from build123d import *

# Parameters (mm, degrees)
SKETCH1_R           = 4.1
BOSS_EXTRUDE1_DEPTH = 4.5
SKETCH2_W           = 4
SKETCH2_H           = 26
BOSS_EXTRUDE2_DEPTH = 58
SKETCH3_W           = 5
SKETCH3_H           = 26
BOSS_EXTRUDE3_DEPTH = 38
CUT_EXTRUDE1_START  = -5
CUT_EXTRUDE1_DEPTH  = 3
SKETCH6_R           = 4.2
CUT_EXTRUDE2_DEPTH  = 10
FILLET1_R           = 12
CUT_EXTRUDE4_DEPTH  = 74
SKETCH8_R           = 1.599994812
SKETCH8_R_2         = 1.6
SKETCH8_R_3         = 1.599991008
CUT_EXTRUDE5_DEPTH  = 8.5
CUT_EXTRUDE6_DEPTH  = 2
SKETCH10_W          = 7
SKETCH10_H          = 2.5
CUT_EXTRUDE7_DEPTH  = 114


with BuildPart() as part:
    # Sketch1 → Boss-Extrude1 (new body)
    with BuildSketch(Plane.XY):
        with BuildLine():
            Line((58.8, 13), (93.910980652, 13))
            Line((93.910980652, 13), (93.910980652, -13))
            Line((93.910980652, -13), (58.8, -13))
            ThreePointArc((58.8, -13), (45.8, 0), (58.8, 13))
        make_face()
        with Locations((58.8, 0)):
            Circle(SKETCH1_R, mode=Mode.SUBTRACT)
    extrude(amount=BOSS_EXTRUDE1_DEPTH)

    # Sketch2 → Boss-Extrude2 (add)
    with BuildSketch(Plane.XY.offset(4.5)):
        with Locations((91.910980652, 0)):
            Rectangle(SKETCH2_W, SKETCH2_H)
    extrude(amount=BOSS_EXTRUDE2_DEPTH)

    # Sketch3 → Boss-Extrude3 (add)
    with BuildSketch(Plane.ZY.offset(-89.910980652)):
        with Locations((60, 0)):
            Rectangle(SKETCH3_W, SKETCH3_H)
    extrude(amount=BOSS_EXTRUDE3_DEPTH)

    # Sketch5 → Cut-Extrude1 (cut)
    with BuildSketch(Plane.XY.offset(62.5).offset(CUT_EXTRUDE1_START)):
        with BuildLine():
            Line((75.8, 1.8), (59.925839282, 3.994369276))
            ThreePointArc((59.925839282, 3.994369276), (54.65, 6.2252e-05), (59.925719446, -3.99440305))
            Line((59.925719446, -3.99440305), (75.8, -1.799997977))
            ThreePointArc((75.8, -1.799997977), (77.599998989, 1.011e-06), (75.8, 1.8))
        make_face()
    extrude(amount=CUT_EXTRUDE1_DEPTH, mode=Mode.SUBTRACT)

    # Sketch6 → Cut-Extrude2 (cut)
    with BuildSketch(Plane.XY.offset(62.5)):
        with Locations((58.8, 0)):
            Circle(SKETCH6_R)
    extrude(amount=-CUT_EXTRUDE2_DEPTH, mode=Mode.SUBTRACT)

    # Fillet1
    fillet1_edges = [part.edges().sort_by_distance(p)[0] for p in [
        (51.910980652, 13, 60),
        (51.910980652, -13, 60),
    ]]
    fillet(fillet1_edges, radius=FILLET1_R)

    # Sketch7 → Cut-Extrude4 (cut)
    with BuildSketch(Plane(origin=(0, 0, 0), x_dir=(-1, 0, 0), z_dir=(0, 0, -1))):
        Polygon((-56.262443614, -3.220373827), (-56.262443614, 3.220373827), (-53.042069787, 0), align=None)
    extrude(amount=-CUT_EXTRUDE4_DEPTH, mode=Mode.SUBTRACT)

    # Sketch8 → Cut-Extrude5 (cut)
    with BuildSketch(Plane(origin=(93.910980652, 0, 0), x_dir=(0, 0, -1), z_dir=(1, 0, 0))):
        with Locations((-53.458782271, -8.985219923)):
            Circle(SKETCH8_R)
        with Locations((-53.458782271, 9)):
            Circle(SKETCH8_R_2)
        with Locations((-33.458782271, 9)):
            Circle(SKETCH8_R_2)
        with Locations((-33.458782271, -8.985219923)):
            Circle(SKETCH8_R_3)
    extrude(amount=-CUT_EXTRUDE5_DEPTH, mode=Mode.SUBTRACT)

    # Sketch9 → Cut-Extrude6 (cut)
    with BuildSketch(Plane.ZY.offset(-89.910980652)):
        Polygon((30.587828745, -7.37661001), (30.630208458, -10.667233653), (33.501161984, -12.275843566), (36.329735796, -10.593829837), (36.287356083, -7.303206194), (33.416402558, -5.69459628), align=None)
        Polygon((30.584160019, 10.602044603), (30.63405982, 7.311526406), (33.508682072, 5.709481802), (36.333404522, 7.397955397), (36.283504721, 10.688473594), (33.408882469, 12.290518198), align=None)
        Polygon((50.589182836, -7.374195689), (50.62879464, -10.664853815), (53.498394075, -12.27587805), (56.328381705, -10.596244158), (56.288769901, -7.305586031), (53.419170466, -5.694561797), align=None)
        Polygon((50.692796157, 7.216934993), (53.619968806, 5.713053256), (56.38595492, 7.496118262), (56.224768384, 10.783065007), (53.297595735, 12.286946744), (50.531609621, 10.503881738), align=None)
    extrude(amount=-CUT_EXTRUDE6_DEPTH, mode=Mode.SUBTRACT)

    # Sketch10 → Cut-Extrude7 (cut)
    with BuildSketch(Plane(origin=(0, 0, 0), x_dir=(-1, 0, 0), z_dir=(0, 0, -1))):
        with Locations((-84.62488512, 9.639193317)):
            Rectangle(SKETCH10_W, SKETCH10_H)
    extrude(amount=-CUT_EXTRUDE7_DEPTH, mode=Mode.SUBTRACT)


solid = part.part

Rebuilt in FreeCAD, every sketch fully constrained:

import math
import FreeCAD as App
import Part
import Sketcher
from FreeCAD import Vector


def edges_at(feature, points):
    """Names of the edges that pass closest to the given points."""
    edges = feature.Shape.Edges
    near = lambda p: min(range(len(edges)), key=lambda i: edges[i].distToShape(Part.Vertex(*p))[0])
    return sorted({f"Edge{near(p) + 1}" for p in points})


def add_polygon(sketch, points):
    """Adds a closed chain of lines whose ends are joined by coincident constraints."""
    first, n = sketch.GeometryCount, len(points)
    for a, b in zip(points, points[1:] + points[:1]):
        sketch.addGeometry(Part.LineSegment(App.Vector(*a, 0), App.Vector(*b, 0)), False)
    for i in range(n):
        sketch.addConstraint(Sketcher.Constraint("Coincident", first + i, 2, first + (i + 1) % n, 1))

doc = App.newDocument("Part")
body = doc.addObject("PartDesign::Body", "Body")

# Sketch on XY plane
sketch1 = body.newObject("Sketcher::SketchObject", "Sketch")
sketch1.AttachmentSupport = (doc.getObject("XY_Plane"), [""])
sketch1.MapMode = "FlatFace"
sketch1.addGeometry(Part.LineSegment(Vector(93.9, 13, 0), Vector(58.8, 13, 0)), False)
sketch1.addGeometry(Part.ArcOfCircle(Part.Circle(Vector(58.8, 0, 0), Vector(0, 0, 1), 13), math.radians(90), math.radians(270)), False)
sketch1.addGeometry(Part.LineSegment(Vector(58.8, -13, 0), Vector(93.9, -13, 0)), False)
sketch1.addGeometry(Part.LineSegment(Vector(93.9, -13, 0), Vector(93.9, 13, 0)), False)
sketch1.addGeometry(Part.Circle(Vector(58.8, 0, 0), Vector(0, 0, 1), 4.1), False)
sketch1.addConstraint(Sketcher.Constraint("Tangent", 0, 2, 1, 1))
sketch1.addConstraint(Sketcher.Constraint("Tangent", 1, 2, 2, 1))
sketch1.addConstraint(Sketcher.Constraint("Coincident", 2, 2, 3, 1))
sketch1.addConstraint(Sketcher.Constraint("Coincident", 3, 2, 0, 1))
sketch1.addConstraint(Sketcher.Constraint("Horizontal", 0))
sketch1.addConstraint(Sketcher.Constraint("Horizontal", 2))
sketch1.addConstraint(Sketcher.Constraint("Vertical", 3))
sketch1.addConstraint(Sketcher.Constraint("Coincident", 4, 3, 1, 3))
sketch1.addConstraint(Sketcher.Constraint("PointOnObject", 1, 3, -1))
sketch1.addConstraint(Sketcher.Constraint("Radius", 1, 13.0))
sketch1.addConstraint(Sketcher.Constraint("Diameter", 4, 8.2))
sketch1.addConstraint(Sketcher.Constraint("DistanceX", -1, 1, 1, 3, 58.8))
sketch1.addConstraint(Sketcher.Constraint("DistanceX", 0, 2, 0, 1, 35.110981))
pad1 = body.newObject("PartDesign::Pad", "Pad")
pad1.Profile = sketch1
pad1.Length = 4.5

# Sketch on XY plane
sketch2 = body.newObject("Sketcher::SketchObject", "Sketch001")
sketch2.AttachmentSupport = (doc.getObject("XY_Plane"), [""])
sketch2.MapMode = "FlatFace"
sketch2.AttachmentOffset = App.Placement(Vector(0, 0, 4.5), App.Rotation())
add_polygon(sketch2, [(89.9, 13), (89.9, -13), (93.9, -13), (93.9, 13)])  # lines 0-3
sketch2.addConstraint(Sketcher.Constraint("Vertical", 0))
sketch2.addConstraint(Sketcher.Constraint("Horizontal", 1))
sketch2.addConstraint(Sketcher.Constraint("Vertical", 2))
sketch2.addConstraint(Sketcher.Constraint("Horizontal", 3))
sketch2.addConstraint(Sketcher.Constraint("DistanceX", 1, 1, 1, 2, 4.0))
sketch2.addConstraint(Sketcher.Constraint("DistanceY", 0, 2, 0, 1, 26.0))
sketch2.addConstraint(Sketcher.Constraint("DistanceY", 0, 2, -1, 1, 13.0))
sketch2.addConstraint(Sketcher.Constraint("DistanceX", -1, 1, 0, 2, 89.910981))
pad2 = body.newObject("PartDesign::Pad", "Pad001")
pad2.Profile = sketch2
pad2.Length = 58

# Sketch on YZ plane
sketch3 = body.newObject("Sketcher::SketchObject", "Sketch002")
sketch3.AttachmentSupport = (doc.getObject("YZ_Plane"), [""])
sketch3.MapMode = "FlatFace"
sketch3.AttachmentOffset = App.Placement(Vector(0, 0, 89.910981), App.Rotation())
add_polygon(sketch3, [(13, 58), (-13, 58), (-13, 62), (13, 62)])  # lines 0-3
sketch3.addConstraint(Sketcher.Constraint("Horizontal", 0))
sketch3.addConstraint(Sketcher.Constraint("Vertical", 1))
sketch3.addConstraint(Sketcher.Constraint("Horizontal", 2))
sketch3.addConstraint(Sketcher.Constraint("Vertical", 3))
sketch3.addConstraint(Sketcher.Constraint("DistanceX", 0, 2, 0, 1, 26.0))
sketch3.addConstraint(Sketcher.Constraint("DistanceY", 1, 1, 1, 2, 5.0))
sketch3.addConstraint(Sketcher.Constraint("DistanceX", 0, 2, -1, 1, 13.0))
sketch3.addConstraint(Sketcher.Constraint("DistanceY", -1, 1, 0, 2, 57.5))
pad3 = body.newObject("PartDesign::Pad", "Pad002")
pad3.Profile = sketch3
pad3.Length = 38
pad3.Reversed = True

# Sketch on XY plane
sketch4 = body.newObject("Sketcher::SketchObject", "Sketch003")
sketch4.AttachmentSupport = (doc.getObject("XY_Plane"), [""])
sketch4.MapMode = "FlatFace"
sketch4.AttachmentOffset = App.Placement(Vector(0, 0, 57.5), App.Rotation())
sketch4.addGeometry(Part.LineSegment(Vector(75.8, 1.8, 0), Vector(59.9, 4, 0)), False)
sketch4.addGeometry(Part.ArcOfCircle(Part.Circle(Vector(58.8, 0, 0), Vector(0, 0, 1), 4.2), math.radians(74), math.radians(286)), False)
sketch4.addGeometry(Part.LineSegment(Vector(59.9, -4, 0), Vector(75.8, -1.8, 0)), False)
sketch4.addGeometry(Part.ArcOfCircle(Part.Circle(Vector(75.8, 0, 0), Vector(0, 0, 1), 1.8), math.radians(-90), math.radians(90)), False)
sketch4.addConstraint(Sketcher.Constraint("Coincident", 0, 2, 1, 1))
sketch4.addConstraint(Sketcher.Constraint("Coincident", 1, 2, 2, 1))
sketch4.addConstraint(Sketcher.Constraint("Coincident", 2, 2, 3, 1))
sketch4.addConstraint(Sketcher.Constraint("Coincident", 3, 2, 0, 1))
sketch4.addConstraint(Sketcher.Constraint("Symmetric", 2, 2, 3, 2, -1))
sketch4.addConstraint(Sketcher.Constraint("PointOnObject", 1, 3, -1))
sketch4.addConstraint(Sketcher.Constraint("Vertical", 3, 3, 2, 2))
sketch4.addConstraint(Sketcher.Constraint("Radius", 3, 1.799999))
sketch4.addConstraint(Sketcher.Constraint("Radius", 1, 4.15))
sketch4.addConstraint(Sketcher.Constraint("DistanceX", 1, 3, 3, 3, 17.0))
sketch4.addConstraint(Sketcher.Constraint("DistanceX", -1, 1, 1, 3, 58.8))
sketch4.addConstraint(Sketcher.Constraint("DistanceX", -1, 1, 0, 2, 59.925839))
sketch4.addConstraint(Sketcher.Constraint("DistanceX", -1, 1, 1, 2, 59.925719))
pocket1 = body.newObject("PartDesign::Pocket", "Pocket")
pocket1.Profile = sketch4
pocket1.Length = 3
pocket1.Reversed = True

# Sketch on XY plane
sketch5 = body.newObject("Sketcher::SketchObject", "Sketch004")
sketch5.AttachmentSupport = (doc.getObject("XY_Plane"), [""])
sketch5.MapMode = "FlatFace"
sketch5.AttachmentOffset = App.Placement(Vector(0, 0, 62.5), App.Rotation())
sketch5.addGeometry(Part.Circle(Vector(58.8, 0, 0), Vector(0, 0, 1), 4.2), False)
sketch5.addConstraint(Sketcher.Constraint("PointOnObject", 0, 3, -1))
sketch5.addConstraint(Sketcher.Constraint("Diameter", 0, 8.4))
sketch5.addConstraint(Sketcher.Constraint("DistanceX", -1, 1, 0, 3, 58.8))
pocket2 = body.newObject("PartDesign::Pocket", "Pocket001")
pocket2.Profile = sketch5
pocket2.Length = 10
doc.recompute()

fillet = body.newObject("PartDesign::Fillet", "Fillet")
fillet.Base = (pocket2, edges_at(pocket2, [(51.911, 13, 60), (51.911, -13, 60)]))
fillet.Radius = 12

# Sketch on XY plane
sketch6 = body.newObject("Sketcher::SketchObject", "Sketch005")
sketch6.AttachmentSupport = (doc.getObject("XY_Plane"), [""])
sketch6.MapMode = "FlatFace"
add_polygon(sketch6, [(56.3, 3.2), (56.3, -3.2), (53, 0)])  # lines 0-2
sketch6.addConstraint(Sketcher.Constraint("Vertical", 0))
sketch6.addConstraint(Sketcher.Constraint("PointOnObject", 1, 2, -1))
sketch6.addConstraint(Sketcher.Constraint("Perpendicular", 1, 2))
sketch6.addConstraint(Sketcher.Constraint("Equal", 1, 2))
sketch6.addConstraint(Sketcher.Constraint("DistanceY", 0, 2, 0, 1, 6.440748))
sketch6.addConstraint(Sketcher.Constraint("DistanceX", -1, 1, 1, 2, 53.04207))
pocket3 = body.newObject("PartDesign::Pocket", "Pocket002")
pocket3.Profile = sketch6
pocket3.Length = 74
pocket3.Reversed = True

# Sketch on YZ plane
sketch7 = body.newObject("Sketcher::SketchObject", "Sketch006")
sketch7.AttachmentSupport = (doc.getObject("YZ_Plane"), [""])
sketch7.MapMode = "FlatFace"
sketch7.AttachmentOffset = App.Placement(Vector(0, 0, 93.910981), App.Rotation())
sketch7.addGeometry(Part.Circle(Vector(-9, 53.5, 0), Vector(0, 0, 1), 1.6), False)
sketch7.addGeometry(Part.Circle(Vector(9, 53.5, 0), Vector(0, 0, 1), 1.6), False)
sketch7.addGeometry(Part.Circle(Vector(9, 33.5, 0), Vector(0, 0, 1), 1.6), False)
sketch7.addGeometry(Part.Circle(Vector(-9, 33.5, 0), Vector(0, 0, 1), 1.6), False)
sketch7.addConstraint(Sketcher.Constraint("Equal", 1, 2))
sketch7.addConstraint(Sketcher.Constraint("Horizontal", 0, 3, 1, 3))
sketch7.addConstraint(Sketcher.Constraint("Horizontal", 2, 3, 3, 3))
sketch7.addConstraint(Sketcher.Constraint("Vertical", 1, 3, 2, 3))
sketch7.addConstraint(Sketcher.Constraint("Vertical", 0, 3, 3, 3))
sketch7.addConstraint(Sketcher.Constraint("Diameter", 1, 3.2))
sketch7.addConstraint(Sketcher.Constraint("DistanceX", -1, 1, 1, 3, 9.0))
sketch7.addConstraint(Sketcher.Constraint("DistanceY", 2, 3, 1, 3, 20.0))
sketch7.addConstraint(Sketcher.Constraint("Diameter", 0, 3.19999))
sketch7.addConstraint(Sketcher.Constraint("Diameter", 3, 3.199982))
sketch7.addConstraint(Sketcher.Constraint("DistanceX", 0, 3, -1, 1, 8.98522))
sketch7.addConstraint(Sketcher.Constraint("DistanceY", -1, 1, 0, 3, 53.458782))
pocket4 = body.newObject("PartDesign::Pocket", "Pocket003")
pocket4.Profile = sketch7
pocket4.Length = 8.5

# Sketch on YZ plane
sketch8 = body.newObject("Sketcher::SketchObject", "Sketch007")
sketch8.AttachmentSupport = (doc.getObject("YZ_Plane"), [""])
sketch8.MapMode = "FlatFace"
sketch8.AttachmentOffset = App.Placement(Vector(0, 0, 89.910981), App.Rotation())
add_polygon(sketch8, [(-7.4, 30.6), (-10.7, 30.6), (-12.3, 33.5), (-10.6, 36.3), (-7.3, 36.3), (-5.7, 33.4)])  # lines 0-5
add_polygon(sketch8, [(10.6, 30.6), (7.3, 30.6), (5.7, 33.5), (7.4, 36.3), (10.7, 36.3), (12.3, 33.4)])  # lines 6-11
add_polygon(sketch8, [(-7.4, 50.6), (-10.7, 50.6), (-12.3, 53.5), (-10.6, 56.3), (-7.3, 56.3), (-5.7, 53.4)])  # lines 12-17
add_polygon(sketch8, [(7.2, 50.7), (5.7, 53.6), (7.5, 56.4), (10.8, 56.2), (12.3, 53.3), (10.5, 50.5)])  # lines 18-23
sketch8.addConstraint(Sketcher.Constraint("Parallel", 0, 3))
sketch8.addConstraint(Sketcher.Constraint("Parallel", 1, 4))
sketch8.addConstraint(Sketcher.Constraint("Parallel", 2, 5))
sketch8.addConstraint(Sketcher.Constraint("Parallel", 6, 9))
sketch8.addConstraint(Sketcher.Constraint("Parallel", 7, 10))
sketch8.addConstraint(Sketcher.Constraint("Parallel", 8, 11))
sketch8.addConstraint(Sketcher.Constraint("Parallel", 12, 15))
sketch8.addConstraint(Sketcher.Constraint("Parallel", 13, 16))
sketch8.addConstraint(Sketcher.Constraint("Parallel", 14, 17))
sketch8.addConstraint(Sketcher.Constraint("Parallel", 18, 21))
sketch8.addConstraint(Sketcher.Constraint("Parallel", 19, 22))
sketch8.addConstraint(Sketcher.Constraint("Parallel", 20, 23))
sketch8.addConstraint(Sketcher.Constraint("Equal", 0, 1))
sketch8.addConstraint(Sketcher.Constraint("Equal", 1, 2))
sketch8.addConstraint(Sketcher.Constraint("Equal", 2, 3))
sketch8.addConstraint(Sketcher.Constraint("Equal", 5, 6))
sketch8.addConstraint(Sketcher.Constraint("Equal", 6, 7))
sketch8.addConstraint(Sketcher.Constraint("Equal", 7, 8))
sketch8.addConstraint(Sketcher.Constraint("Equal", 8, 9))
sketch8.addConstraint(Sketcher.Constraint("Equal", 11, 12))
sketch8.addConstraint(Sketcher.Constraint("Equal", 12, 13))
sketch8.addConstraint(Sketcher.Constraint("Equal", 13, 14))
sketch8.addConstraint(Sketcher.Constraint("Equal", 14, 15))
sketch8.addConstraint(Sketcher.Constraint("Equal", 17, 18))
sketch8.addConstraint(Sketcher.Constraint("Equal", 18, 19))
sketch8.addConstraint(Sketcher.Constraint("Equal", 19, 20))
sketch8.addConstraint(Sketcher.Constraint("Equal", 20, 21))
sketch8.addConstraint(Sketcher.Constraint("DistanceY", 4, 2, 8, 2, 2.917002))
sketch8.addConstraint(Sketcher.Constraint("DistanceY", 20, 2, 15, 2, 0.064002))
sketch8.addConstraint(Sketcher.Constraint("DistanceY", 9, 2, 8, 2, 0.0499))
sketch8.addConstraint(Sketcher.Constraint("DistanceY", 10, 2, 7, 2, 0.0998))
sketch8.addConstraint(Sketcher.Constraint("DistanceY", 12, 2, 13, 2, 2.869599))
sketch8.addConstraint(Sketcher.Constraint("DistanceX", 1, 2, 14, 2, 1.679599))
sketch8.addConstraint(Sketcher.Constraint("DistanceY", 17, 2, 14, 2, 5.739199))
sketch8.addConstraint(Sketcher.Constraint("DistanceY", 16, 2, 18, 2, 0.200798))
sketch8.addConstraint(Sketcher.Constraint("DistanceY", -1, 1, 0, 2, 30.630208))
sketch8.addConstraint(Sketcher.Constraint("DistanceY", -1, 1, 1, 2, 33.501162))
sketch8.addConstraint(Sketcher.Constraint("DistanceX", 2, 2, -1, 1, 10.59383))
sketch8.addConstraint(Sketcher.Constraint("DistanceX", 5, 2, -1, 1, 7.37661))
sketch8.addConstraint(Sketcher.Constraint("DistanceY", -1, 1, 5, 2, 30.587829))
sketch8.addConstraint(Sketcher.Constraint("DistanceY", -1, 1, 6, 2, 30.63406))
sketch8.addConstraint(Sketcher.Constraint("DistanceX", -1, 1, 7, 2, 5.709482))
sketch8.addConstraint(Sketcher.Constraint("DistanceX", -1, 1, 10, 2, 12.290518))
sketch8.addConstraint(Sketcher.Constraint("DistanceX", 13, 2, -1, 1, 12.275878))
sketch8.addConstraint(Sketcher.Constraint("DistanceY", -1, 1, 14, 2, 56.328382))
sketch8.addConstraint(Sketcher.Constraint("DistanceX", -1, 1, 19, 2, 7.496118))
sketch8.addConstraint(Sketcher.Constraint("DistanceX", -1, 1, 22, 2, 10.503882))
sketch8.addConstraint(Sketcher.Constraint("DistanceY", -1, 1, 22, 2, 50.53161))
pocket5 = body.newObject("PartDesign::Pocket", "Pocket004")
pocket5.Profile = sketch8
pocket5.Length = 2
pocket5.Reversed = True

# Sketch on XY plane
sketch9 = body.newObject("Sketcher::SketchObject", "Sketch008")
sketch9.AttachmentSupport = (doc.getObject("XY_Plane"), [""])
sketch9.MapMode = "FlatFace"
add_polygon(sketch9, [(88.1, 10.9), (88.1, 8.4), (81.1, 8.4), (81.1, 10.9)])  # lines 0-3
sketch9.addConstraint(Sketcher.Constraint("Vertical", 0))
sketch9.addConstraint(Sketcher.Constraint("Horizontal", 1))
sketch9.addConstraint(Sketcher.Constraint("Vertical", 2))
sketch9.addConstraint(Sketcher.Constraint("Horizontal", 3))
sketch9.addConstraint(Sketcher.Constraint("DistanceX", 1, 2, 1, 1, 7.0))
sketch9.addConstraint(Sketcher.Constraint("DistanceY", 0, 2, 0, 1, 2.5))
sketch9.addConstraint(Sketcher.Constraint("DistanceX", -1, 1, 0, 2, 88.124885))
sketch9.addConstraint(Sketcher.Constraint("DistanceY", -1, 1, 0, 2, 8.389193))
pocket6 = body.newObject("PartDesign::Pocket", "Pocket005")
pocket6.Profile = sketch9
pocket6.Length = 114
pocket6.Reversed = True

doc.recompute()
